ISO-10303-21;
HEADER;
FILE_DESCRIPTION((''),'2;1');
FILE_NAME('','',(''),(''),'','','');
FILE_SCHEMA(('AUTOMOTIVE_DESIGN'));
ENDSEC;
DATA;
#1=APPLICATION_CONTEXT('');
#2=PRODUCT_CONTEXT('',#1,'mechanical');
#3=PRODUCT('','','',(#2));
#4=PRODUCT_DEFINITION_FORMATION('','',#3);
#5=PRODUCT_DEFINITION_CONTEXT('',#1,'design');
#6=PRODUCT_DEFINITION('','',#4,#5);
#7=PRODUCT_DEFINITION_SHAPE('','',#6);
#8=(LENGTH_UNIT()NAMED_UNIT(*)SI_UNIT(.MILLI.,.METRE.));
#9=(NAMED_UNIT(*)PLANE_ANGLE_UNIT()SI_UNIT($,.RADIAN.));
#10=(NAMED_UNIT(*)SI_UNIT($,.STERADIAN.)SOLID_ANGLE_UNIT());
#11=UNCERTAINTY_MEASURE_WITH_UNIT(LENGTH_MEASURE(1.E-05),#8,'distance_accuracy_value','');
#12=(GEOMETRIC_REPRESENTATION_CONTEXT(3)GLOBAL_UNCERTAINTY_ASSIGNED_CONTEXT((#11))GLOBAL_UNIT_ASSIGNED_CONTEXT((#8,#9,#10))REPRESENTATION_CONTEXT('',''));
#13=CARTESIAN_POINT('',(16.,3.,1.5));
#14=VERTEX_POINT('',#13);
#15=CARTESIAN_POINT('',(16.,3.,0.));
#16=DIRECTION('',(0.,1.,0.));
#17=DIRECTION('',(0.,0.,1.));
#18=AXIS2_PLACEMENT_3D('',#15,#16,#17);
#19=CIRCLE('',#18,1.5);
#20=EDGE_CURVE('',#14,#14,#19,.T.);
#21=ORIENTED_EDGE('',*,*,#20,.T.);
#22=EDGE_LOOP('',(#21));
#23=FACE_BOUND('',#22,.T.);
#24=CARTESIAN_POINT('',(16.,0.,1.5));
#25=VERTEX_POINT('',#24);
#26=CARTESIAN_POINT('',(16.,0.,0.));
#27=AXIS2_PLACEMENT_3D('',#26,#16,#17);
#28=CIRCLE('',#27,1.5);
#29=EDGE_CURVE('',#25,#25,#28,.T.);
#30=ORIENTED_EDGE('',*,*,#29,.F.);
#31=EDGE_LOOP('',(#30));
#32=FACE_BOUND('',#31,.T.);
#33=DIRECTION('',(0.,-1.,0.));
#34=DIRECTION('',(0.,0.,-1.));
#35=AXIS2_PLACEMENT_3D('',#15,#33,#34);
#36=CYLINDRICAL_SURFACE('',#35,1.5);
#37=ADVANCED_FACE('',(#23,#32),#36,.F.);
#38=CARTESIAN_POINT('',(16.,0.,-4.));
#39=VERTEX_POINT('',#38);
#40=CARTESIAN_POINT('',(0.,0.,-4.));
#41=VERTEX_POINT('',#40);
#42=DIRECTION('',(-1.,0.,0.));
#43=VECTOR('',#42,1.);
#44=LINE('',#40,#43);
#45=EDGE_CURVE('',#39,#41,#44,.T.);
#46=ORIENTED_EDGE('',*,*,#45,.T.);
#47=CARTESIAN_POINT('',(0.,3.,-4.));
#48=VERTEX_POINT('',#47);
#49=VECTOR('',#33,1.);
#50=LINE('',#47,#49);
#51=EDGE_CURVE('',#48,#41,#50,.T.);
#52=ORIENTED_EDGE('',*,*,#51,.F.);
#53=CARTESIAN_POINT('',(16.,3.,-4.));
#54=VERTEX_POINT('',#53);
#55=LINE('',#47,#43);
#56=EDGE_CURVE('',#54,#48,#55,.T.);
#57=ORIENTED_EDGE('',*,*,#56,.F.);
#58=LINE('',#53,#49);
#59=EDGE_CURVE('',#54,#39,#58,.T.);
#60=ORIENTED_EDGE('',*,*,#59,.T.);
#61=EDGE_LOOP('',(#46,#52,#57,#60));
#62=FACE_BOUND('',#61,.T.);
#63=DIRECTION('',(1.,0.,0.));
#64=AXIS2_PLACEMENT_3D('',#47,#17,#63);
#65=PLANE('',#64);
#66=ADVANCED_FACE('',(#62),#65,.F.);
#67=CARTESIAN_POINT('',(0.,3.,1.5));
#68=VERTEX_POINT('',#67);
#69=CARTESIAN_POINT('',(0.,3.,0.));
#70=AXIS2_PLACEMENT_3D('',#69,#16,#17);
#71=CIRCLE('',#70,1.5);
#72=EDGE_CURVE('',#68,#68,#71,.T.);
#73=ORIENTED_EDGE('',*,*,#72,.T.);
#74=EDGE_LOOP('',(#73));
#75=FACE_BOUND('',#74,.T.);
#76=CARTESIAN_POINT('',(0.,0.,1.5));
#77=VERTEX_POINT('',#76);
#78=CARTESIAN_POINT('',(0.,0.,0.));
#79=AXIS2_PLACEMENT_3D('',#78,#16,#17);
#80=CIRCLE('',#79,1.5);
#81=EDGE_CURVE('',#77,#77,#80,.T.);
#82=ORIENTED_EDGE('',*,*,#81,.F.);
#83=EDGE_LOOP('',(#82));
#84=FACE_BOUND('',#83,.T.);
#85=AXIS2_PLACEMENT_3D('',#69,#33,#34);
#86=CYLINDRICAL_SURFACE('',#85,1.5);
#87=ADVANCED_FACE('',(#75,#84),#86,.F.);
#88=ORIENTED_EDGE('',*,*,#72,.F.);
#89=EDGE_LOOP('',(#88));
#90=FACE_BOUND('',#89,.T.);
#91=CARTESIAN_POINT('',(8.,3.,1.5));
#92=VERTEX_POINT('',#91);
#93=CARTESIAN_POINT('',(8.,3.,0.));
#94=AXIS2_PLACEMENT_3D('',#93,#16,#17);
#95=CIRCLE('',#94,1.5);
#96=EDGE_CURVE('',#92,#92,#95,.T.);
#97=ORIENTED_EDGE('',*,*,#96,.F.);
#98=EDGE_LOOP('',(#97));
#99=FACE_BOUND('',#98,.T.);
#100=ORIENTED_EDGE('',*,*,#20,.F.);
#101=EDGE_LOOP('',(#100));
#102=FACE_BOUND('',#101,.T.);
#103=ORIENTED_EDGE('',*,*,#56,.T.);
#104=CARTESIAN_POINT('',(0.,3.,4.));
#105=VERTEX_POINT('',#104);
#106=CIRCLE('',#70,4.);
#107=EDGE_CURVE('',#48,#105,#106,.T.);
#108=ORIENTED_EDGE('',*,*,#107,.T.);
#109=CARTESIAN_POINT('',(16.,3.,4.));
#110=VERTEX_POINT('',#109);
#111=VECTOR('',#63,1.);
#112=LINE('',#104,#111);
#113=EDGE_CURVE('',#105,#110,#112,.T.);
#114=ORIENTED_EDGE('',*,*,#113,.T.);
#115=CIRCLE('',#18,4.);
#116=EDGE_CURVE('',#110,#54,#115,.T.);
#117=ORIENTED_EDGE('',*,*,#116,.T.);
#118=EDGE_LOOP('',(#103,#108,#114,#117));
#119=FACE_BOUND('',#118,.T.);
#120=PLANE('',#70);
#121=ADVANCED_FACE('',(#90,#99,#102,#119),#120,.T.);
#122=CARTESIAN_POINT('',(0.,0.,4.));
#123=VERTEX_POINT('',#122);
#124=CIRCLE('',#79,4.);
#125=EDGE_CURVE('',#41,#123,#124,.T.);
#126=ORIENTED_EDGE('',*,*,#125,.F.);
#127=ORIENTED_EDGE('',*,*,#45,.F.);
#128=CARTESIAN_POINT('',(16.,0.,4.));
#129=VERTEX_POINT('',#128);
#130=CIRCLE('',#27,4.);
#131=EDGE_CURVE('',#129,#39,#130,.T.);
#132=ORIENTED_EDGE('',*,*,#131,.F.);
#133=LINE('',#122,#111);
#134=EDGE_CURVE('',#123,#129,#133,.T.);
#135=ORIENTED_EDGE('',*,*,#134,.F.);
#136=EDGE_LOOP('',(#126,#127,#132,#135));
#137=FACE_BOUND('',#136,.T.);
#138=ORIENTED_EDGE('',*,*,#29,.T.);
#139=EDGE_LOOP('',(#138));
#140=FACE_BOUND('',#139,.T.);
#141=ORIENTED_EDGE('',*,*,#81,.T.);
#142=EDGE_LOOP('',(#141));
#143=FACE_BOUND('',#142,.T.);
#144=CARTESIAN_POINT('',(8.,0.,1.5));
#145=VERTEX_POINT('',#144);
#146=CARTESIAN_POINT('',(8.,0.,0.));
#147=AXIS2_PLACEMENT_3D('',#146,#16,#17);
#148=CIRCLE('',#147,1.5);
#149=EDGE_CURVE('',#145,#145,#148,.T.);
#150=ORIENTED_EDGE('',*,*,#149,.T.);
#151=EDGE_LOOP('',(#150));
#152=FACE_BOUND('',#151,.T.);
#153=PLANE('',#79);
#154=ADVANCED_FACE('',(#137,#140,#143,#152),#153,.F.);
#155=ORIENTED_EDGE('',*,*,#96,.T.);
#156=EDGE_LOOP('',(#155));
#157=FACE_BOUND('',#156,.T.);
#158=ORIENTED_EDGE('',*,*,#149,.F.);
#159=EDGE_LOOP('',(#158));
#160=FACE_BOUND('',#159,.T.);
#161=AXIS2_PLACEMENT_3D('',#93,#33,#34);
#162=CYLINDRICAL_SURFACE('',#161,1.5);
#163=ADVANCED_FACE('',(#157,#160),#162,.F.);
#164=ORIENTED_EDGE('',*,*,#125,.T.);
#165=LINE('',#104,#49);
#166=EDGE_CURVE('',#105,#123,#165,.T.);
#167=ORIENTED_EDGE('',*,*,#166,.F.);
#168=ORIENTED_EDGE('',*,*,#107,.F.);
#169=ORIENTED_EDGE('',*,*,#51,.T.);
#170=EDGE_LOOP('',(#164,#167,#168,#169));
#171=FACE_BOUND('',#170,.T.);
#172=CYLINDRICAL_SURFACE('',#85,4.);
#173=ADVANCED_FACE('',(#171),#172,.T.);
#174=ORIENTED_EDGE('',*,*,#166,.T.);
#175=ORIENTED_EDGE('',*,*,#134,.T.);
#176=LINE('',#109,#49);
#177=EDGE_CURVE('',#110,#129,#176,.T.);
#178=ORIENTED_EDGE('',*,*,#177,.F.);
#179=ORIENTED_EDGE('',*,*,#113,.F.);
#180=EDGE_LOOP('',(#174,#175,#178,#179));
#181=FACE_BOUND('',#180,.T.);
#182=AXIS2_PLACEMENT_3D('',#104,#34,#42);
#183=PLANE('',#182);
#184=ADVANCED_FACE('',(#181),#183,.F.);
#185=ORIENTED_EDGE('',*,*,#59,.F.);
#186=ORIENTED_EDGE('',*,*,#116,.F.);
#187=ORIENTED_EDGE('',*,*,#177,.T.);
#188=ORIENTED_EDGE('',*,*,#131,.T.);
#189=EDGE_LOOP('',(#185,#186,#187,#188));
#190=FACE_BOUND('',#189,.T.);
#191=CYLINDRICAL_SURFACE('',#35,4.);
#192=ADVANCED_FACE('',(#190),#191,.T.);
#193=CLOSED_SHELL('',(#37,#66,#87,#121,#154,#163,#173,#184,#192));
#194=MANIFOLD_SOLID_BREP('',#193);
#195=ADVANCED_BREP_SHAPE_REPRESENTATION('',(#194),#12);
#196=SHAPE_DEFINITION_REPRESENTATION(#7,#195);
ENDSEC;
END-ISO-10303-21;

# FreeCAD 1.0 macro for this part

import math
import FreeCAD as App
import Part
import Sketcher
Q = App.Units.Quantity

doc = App.newDocument("Part")
body = doc.addObject("PartDesign::Body", "Body")

sketch1 = body.newObject("Sketcher::SketchObject", "Sketch")
sketch1.AttachmentSupport = (doc.getObject("XZ_Plane"), [""])
sketch1.MapMode = "FlatFace"
sketch1.addGeometry(Part.Circle(App.Vector(24, 0, 0), App.Vector(0, 0, 1), 1.5), False)
sketch1.addConstraint(Sketcher.Constraint("PointOnObject", 0, 3, -1))
sketch1.addConstraint(Sketcher.Constraint("Diameter", 0, Q("3 mm")))
sketch1.addConstraint(Sketcher.Constraint("DistanceX", -1, 1, 0, 3, Q("24 mm")))
pad1 = body.newObject("PartDesign::Pad", "Pad")
pad1.Profile = sketch1
pad1.Length = 3
pad1.Reversed = True
body2 = doc.addObject("PartDesign::Body", "Body001")

sketch2 = body2.newObject("Sketcher::SketchObject", "Sketch001")
sketch2.AttachmentSupport = (doc.getObject("XZ_Plane001"), [""])
sketch2.MapMode = "FlatFace"
sketch2.addGeometry(Part.Circle(App.Vector(32, 0, 0), App.Vector(0, 0, 1), 1.5), False)
sketch2.addConstraint(Sketcher.Constraint("PointOnObject", 0, 3, -1))
sketch2.addConstraint(Sketcher.Constraint("Diameter", 0, Q("3 mm")))
sketch2.addConstraint(Sketcher.Constraint("DistanceX", -1, 1, 0, 3, Q("32 mm")))
pad2 = body2.newObject("PartDesign::Pad", "Pad001")
pad2.Profile = sketch2
pad2.Length = 3
pad2.Reversed = True
body3 = doc.addObject("PartDesign::Body", "Body002")

sketch3 = body3.newObject("Sketcher::SketchObject", "Sketch002")
sketch3.AttachmentSupport = (doc.getObject("XZ_Plane002"), [""])
sketch3.MapMode = "FlatFace"
sketch3.addGeometry(Part.Circle(App.Vector(40, 0, 0), App.Vector(0, 0, 1), 1.5), False)
sketch3.addConstraint(Sketcher.Constraint("PointOnObject", 0, 3, -1))
sketch3.addConstraint(Sketcher.Constraint("Diameter", 0, Q("3 mm")))
sketch3.addConstraint(Sketcher.Constraint("DistanceX", -1, 1, 0, 3, Q("40 mm")))
pad3 = body3.newObject("PartDesign::Pad", "Pad002")
pad3.Profile = sketch3
pad3.Length = 3
pad3.Reversed = True
body4 = doc.addObject("PartDesign::Body", "Body003")

sketch4 = body4.newObject("Sketcher::SketchObject", "Sketch003")
sketch4.AttachmentSupport = (doc.getObject("XZ_Plane003"), [""])
sketch4.MapMode = "FlatFace"
sketch4.addGeometry(Part.Circle(App.Vector(48, 0, 0), App.Vector(0, 0, 1), 1.5), False)
sketch4.addConstraint(Sketcher.Constraint("PointOnObject", 0, 3, -1))
sketch4.addConstraint(Sketcher.Constraint("Diameter", 0, Q("3 mm")))
sketch4.addConstraint(Sketcher.Constraint("DistanceX", -1, 1, 0, 3, Q("48 mm")))
pad4 = body4.newObject("PartDesign::Pad", "Pad003")
pad4.Profile = sketch4
pad4.Length = 3
pad4.Reversed = True
body5 = doc.addObject("PartDesign::Body", "Body004")

sketch5 = body5.newObject("Sketcher::SketchObject", "Sketch004")
sketch5.AttachmentSupport = (doc.getObject("XZ_Plane004"), [""])
sketch5.MapMode = "FlatFace"
sketch5.addGeometry(Part.Circle(App.Vector(56, 0, 0), App.Vector(0, 0, 1), 1.5), False)
sketch5.addConstraint(Sketcher.Constraint("PointOnObject", 0, 3, -1))
sketch5.addConstraint(Sketcher.Constraint("Diameter", 0, Q("3 mm")))
sketch5.addConstraint(Sketcher.Constraint("DistanceX", -1, 1, 0, 3, Q("56 mm")))
pad5 = body5.newObject("PartDesign::Pad", "Pad004")
pad5.Profile = sketch5
pad5.Length = 3
pad5.Reversed = True
body6 = doc.addObject("PartDesign::Body", "Body005")

sketch6 = body6.newObject("Sketcher::SketchObject", "Sketch005")
sketch6.AttachmentSupport = (doc.getObject("XZ_Plane005"), [""])
sketch6.MapMode = "FlatFace"
sketch6.addGeometry(Part.Circle(App.Vector(64, 0, 0), App.Vector(0, 0, 1), 1.5), False)
sketch6.addConstraint(Sketcher.Constraint("PointOnObject", 0, 3, -1))
sketch6.addConstraint(Sketcher.Constraint("Diameter", 0, Q("3 mm")))
sketch6.addConstraint(Sketcher.Constraint("DistanceX", -1, 1, 0, 3, Q("64 mm")))
pad6 = body6.newObject("PartDesign::Pad", "Pad005")
pad6.Profile = sketch6
pad6.Length = 3
pad6.Reversed = True
body7 = doc.addObject("PartDesign::Body", "Body006")

sketch7 = body7.newObject("Sketcher::SketchObject", "Sketch006")
sketch7.AttachmentSupport = (doc.getObject("XZ_Plane006"), [""])
sketch7.MapMode = "FlatFace"
sketch7.addGeometry(Part.Circle(App.Vector(72, 0, 0), App.Vector(0, 0, 1), 1.5), False)
sketch7.addConstraint(Sketcher.Constraint("PointOnObject", 0, 3, -1))
sketch7.addConstraint(Sketcher.Constraint("Diameter", 0, Q("3 mm")))
sketch7.addConstraint(Sketcher.Constraint("DistanceX", -1, 1, 0, 3, Q("72 mm")))
pad7 = body7.newObject("PartDesign::Pad", "Pad006")
pad7.Profile = sketch7
pad7.Length = 3
pad7.Reversed = True
body8 = doc.addObject("PartDesign::Body", "Body007")

sketch8 = body8.newObject("Sketcher::SketchObject", "Sketch007")
sketch8.AttachmentSupport = (doc.getObject("XZ_Plane007"), [""])
sketch8.MapMode = "FlatFace"
sketch8.addGeometry(Part.Circle(App.Vector(80, 0, 0), App.Vector(0, 0, 1), 1.5), False)
sketch8.addConstraint(Sketcher.Constraint("PointOnObject", 0, 3, -1))
sketch8.addConstraint(Sketcher.Constraint("Diameter", 0, Q("3 mm")))
sketch8.addConstraint(Sketcher.Constraint("DistanceX", -1, 1, 0, 3, Q("80 mm")))
pad8 = body8.newObject("PartDesign::Pad", "Pad007")
pad8.Profile = sketch8
pad8.Length = 3
pad8.Reversed = True
body9 = doc.addObject("PartDesign::Body", "Body008")

sketch9 = body9.newObject("Sketcher::SketchObject", "Sketch008")
sketch9.AttachmentSupport = (doc.getObject("XZ_Plane008"), [""])
sketch9.MapMode = "FlatFace"
sketch9.addGeometry(Part.LineSegment(App.Vector(16, -4, 0), App.Vector(0, -4, 0)), False)
sketch9.addGeometry(Part.ArcOfCircle(Part.Circle(App.Vector(0, 0, 0), App.Vector(0, 0, 1), 4), math.radians(90), math.radians(270)), False)
sketch9.addGeometry(Part.LineSegment(App.Vector(0, 4, 0), App.Vector(16, 4, 0)), False)
sketch9.addGeometry(Part.ArcOfCircle(Part.Circle(App.Vector(16, 0, 0), App.Vector(0, 0, 1), 4), math.radians(-90), math.radians(90)), False)
sketch9.addGeometry(Part.Circle(App.Vector(16, 0, 0), App.Vector(0, 0, 1), 1.5), False)
sketch9.addGeometry(Part.Circle(App.Vector(8, 0, 0), App.Vector(0, 0, 1), 1.5), False)
sketch9.addGeometry(Part.Circle(App.Vector(0, 0, 0), App.Vector(0, 0, 1), 1.5), False)
sketch9.addConstraint(Sketcher.Constraint("Tangent", 0, 2, 1, 2))
sketch9.addConstraint(Sketcher.Constraint("Tangent", 1, 1, 2, 1))
sketch9.addConstraint(Sketcher.Constraint("Tangent", 2, 2, 3, 2))
sketch9.addConstraint(Sketcher.Constraint("Tangent", 3, 1, 0, 1))
sketch9.addConstraint(Sketcher.Constraint("Horizontal", 0))
sketch9.addConstraint(Sketcher.Constraint("Horizontal", 2))
sketch9.addConstraint(Sketcher.Constraint("Coincident", 1, 3, -1, 1))
sketch9.addConstraint(Sketcher.Constraint("Coincident", 6, 3, -1, 1))
sketch9.addConstraint(Sketcher.Constraint("Coincident", 4, 3, 3, 3))
sketch9.addConstraint(Sketcher.Constraint("Equal", 4, 5))
sketch9.addConstraint(Sketcher.Constraint("Equal", 5, 6))
sketch9.addConstraint(Sketcher.Constraint("PointOnObject", 5, 3, -1))
sketch9.addConstraint(Sketcher.Constraint("Diameter", 4, Q("3 mm")))
sketch9.addConstraint(Sketcher.Constraint("Radius", 1, Q("4 mm")))
sketch9.addConstraint(Sketcher.Constraint("DistanceX", 0, 2, 0, 1, Q("16 mm")))
sketch9.addConstraint(Sketcher.Constraint("DistanceX", -1, 1, 5, 3, Q("8 mm")))
pad9 = body9.newObject("PartDesign::Pad", "Pad008")
pad9.Profile = sketch9
pad9.Length = 3
pad9.Reversed = True
body10 = doc.addObject("PartDesign::Body", "Body009")

sketch10 = body10.newObject("Sketcher::SketchObject", "Sketch009")
sketch10.AttachmentSupport = (doc.getObject("XZ_Plane009"), [""])
sketch10.MapMode = "FlatFace"
sketch10.addGeometry(Part.LineSegment(App.Vector(22, 3, 0), App.Vector(22, -5, 0)), False)
sketch10.addGeometry(Part.LineSegment(App.Vector(22, -5, 0), App.Vector(87, -5, 0)), False)
sketch10.addGeometry(Part.LineSegment(App.Vector(87, -5, 0), App.Vector(87, 3, 0)), False)
sketch10.addGeometry(Part.LineSegment(App.Vector(87, 3, 0), App.Vector(22, 3, 0)), False)
sketch10.addConstraint(Sketcher.Constraint("Coincident", 0, 2, 1, 1))
sketch10.addConstraint(Sketcher.Constraint("Coincident", 1, 2, 2, 1))
sketch10.addConstraint(Sketcher.Constraint("Coincident", 2, 2, 3, 1))
sketch10.addConstraint(Sketcher.Constraint("Coincident", 3, 2, 0, 1))
sketch10.addConstraint(Sketcher.Constraint("Vertical", 0))
sketch10.addConstraint(Sketcher.Constraint("Horizontal", 1))
sketch10.addConstraint(Sketcher.Constraint("Vertical", 2))
sketch10.addConstraint(Sketcher.Constraint("Horizontal", 3))
sketch10.addConstraint(Sketcher.Constraint("DistanceY", 0, 2, 0, 1, Q("8.34658 mm")))
sketch10.addConstraint(Sketcher.Constraint("DistanceX", 1, 1, 1, 2, Q("64.685996 mm")))
sketch10.addConstraint(Sketcher.Constraint("DistanceX", -1, 1, 1, 2, Q("86.544881 mm")))
sketch10.addConstraint(Sketcher.Constraint("DistanceY", 0, 2, -1, 1, Q("4.924814 mm")))
pad10 = body10.newObject("PartDesign::Pad", "Pad009")
pad10.Profile = sketch10
pad10.Length = 10
pad10.Reversed = True
doc.recompute()

body11 = doc.addObject("PartDesign::Body", "Body010")
body11.BaseFeature = body10
boolean = body.newObject("PartDesign::Boolean", "Boolean")
boolean.Type = "Cut"
boolean.addObjects([body11])
doc.recompute()

body12 = doc.addObject("PartDesign::Body", "Body011")
body12.BaseFeature = body10
boolean2 = body2.newObject("PartDesign::Boolean", "Boolean001")
boolean2.Type = "Cut"
boolean2.addObjects([body12])
doc.recompute()

body13 = doc.addObject("PartDesign::Body", "Body012")
body13.BaseFeature = body10
boolean3 = body3.newObject("PartDesign::Boolean", "Boolean002")
boolean3.Type = "Cut"
boolean3.addObjects([body13])
doc.recompute()

body14 = doc.addObject("PartDesign::Body", "Body013")
body14.BaseFeature = body10
boolean4 = body4.newObject("PartDesign::Boolean", "Boolean003")
boolean4.Type = "Cut"
boolean4.addObjects([body14])
doc.recompute()

body15 = doc.addObject("PartDesign::Body", "Body014")
body15.BaseFeature = body10
boolean5 = body5.newObject("PartDesign::Boolean", "Boolean004")
boolean5.Type = "Cut"
boolean5.addObjects([body15])
doc.recompute()

body16 = doc.addObject("PartDesign::Body", "Body015")
body16.BaseFeature = body10
boolean6 = body6.newObject("PartDesign::Boolean", "Boolean005")
boolean6.Type = "Cut"
boolean6.addObjects([body16])
doc.recompute()

body17 = doc.addObject("PartDesign::Body", "Body016")
body17.BaseFeature = body10
boolean7 = body7.newObject("PartDesign::Boolean", "Boolean006")
boolean7.Type = "Cut"
boolean7.addObjects([body17])
doc.recompute()

boolean8 = body8.newObject("PartDesign::Boolean", "Boolean007")
boolean8.Type = "Cut"
boolean8.addObjects([body10])

doc.recompute()
